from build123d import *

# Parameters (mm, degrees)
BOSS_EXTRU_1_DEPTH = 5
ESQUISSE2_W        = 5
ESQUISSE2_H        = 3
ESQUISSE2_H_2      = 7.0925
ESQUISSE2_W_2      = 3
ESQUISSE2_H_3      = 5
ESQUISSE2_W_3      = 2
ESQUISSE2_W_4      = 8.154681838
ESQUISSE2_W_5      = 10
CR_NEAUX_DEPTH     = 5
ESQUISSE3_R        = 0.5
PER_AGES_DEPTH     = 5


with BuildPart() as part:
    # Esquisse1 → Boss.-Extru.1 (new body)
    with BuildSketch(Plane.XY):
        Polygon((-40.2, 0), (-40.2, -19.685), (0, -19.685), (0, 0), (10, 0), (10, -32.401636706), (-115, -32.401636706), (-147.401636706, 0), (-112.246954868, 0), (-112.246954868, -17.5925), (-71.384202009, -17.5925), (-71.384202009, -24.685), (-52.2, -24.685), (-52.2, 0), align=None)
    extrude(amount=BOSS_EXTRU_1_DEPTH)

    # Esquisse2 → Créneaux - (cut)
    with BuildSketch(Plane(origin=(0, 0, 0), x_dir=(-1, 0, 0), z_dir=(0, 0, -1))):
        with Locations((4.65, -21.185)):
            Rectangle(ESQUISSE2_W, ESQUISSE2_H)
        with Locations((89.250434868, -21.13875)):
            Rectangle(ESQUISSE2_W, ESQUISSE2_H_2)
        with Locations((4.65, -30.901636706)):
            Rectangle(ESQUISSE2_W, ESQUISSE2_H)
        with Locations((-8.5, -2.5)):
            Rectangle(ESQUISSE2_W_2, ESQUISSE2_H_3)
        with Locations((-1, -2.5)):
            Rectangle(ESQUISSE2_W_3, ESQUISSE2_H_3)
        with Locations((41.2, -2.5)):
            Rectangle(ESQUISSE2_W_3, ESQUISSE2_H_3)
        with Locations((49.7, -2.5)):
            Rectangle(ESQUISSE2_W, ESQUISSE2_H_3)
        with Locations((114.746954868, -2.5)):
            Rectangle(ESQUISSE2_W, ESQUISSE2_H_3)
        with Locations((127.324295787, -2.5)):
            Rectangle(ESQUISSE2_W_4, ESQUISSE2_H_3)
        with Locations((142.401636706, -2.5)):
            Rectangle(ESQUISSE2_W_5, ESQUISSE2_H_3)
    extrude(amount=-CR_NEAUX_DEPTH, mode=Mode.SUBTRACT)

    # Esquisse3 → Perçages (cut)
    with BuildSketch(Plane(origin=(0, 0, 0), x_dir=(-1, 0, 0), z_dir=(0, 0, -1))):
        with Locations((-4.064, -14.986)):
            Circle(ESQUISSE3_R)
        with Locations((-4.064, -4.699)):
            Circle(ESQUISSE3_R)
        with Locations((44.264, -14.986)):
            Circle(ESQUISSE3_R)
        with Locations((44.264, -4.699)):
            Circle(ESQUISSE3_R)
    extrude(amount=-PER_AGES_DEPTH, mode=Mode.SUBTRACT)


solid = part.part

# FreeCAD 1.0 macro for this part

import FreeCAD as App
import Part
import Sketcher
Q = App.Units.Quantity


def add_polygon(sketch, points):
    """Adds a closed chain of lines whose ends are joined by coincident constraints."""
    first, n = sketch.GeometryCount, len(points)
    for a, b in zip(points, points[1:] + points[:1]):
        sketch.addGeometry(Part.LineSegment(App.Vector(*a, 0), App.Vector(*b, 0)), False)
    for i in range(n):
        sketch.addConstraint(Sketcher.Constraint("Coincident", first + i, 2, first + (i + 1) % n, 1))

doc = App.newDocument("Part")
body = doc.addObject("PartDesign::Body", "Body")

sketch1 = body.newObject("Sketcher::SketchObject", "Sketch")
sketch1.AttachmentSupport = (doc.getObject("XY_Plane"), [""])
sketch1.MapMode = "FlatFace"
add_polygon(sketch1, [(-40, -20), (-40, 0), (-52, 0), (-52, -25), (-71, -25), (-71, -18), (-112, -18), (-112, 0), (-147, 0), (-115, -32), (10, -32), (10, 0), (0, 0), (0, -20)])
sketch1.addConstraint([
    Sketcher.Constraint("Vertical", 0),
    Sketcher.Constraint("Horizontal", 1),
    Sketcher.Constraint("Vertical", 2),
    Sketcher.Constraint("Horizontal", 3),
    Sketcher.Constraint("Vertical", 4),
    Sketcher.Constraint("Horizontal", 5),
    Sketcher.Constraint("Vertical", 6),
    Sketcher.Constraint("Horizontal", 7),
    Sketcher.Constraint("Horizontal", 9),
    Sketcher.Constraint("Vertical", 10),
    Sketcher.Constraint("Horizontal", 11),
    Sketcher.Constraint("Vertical", 12),
    Sketcher.Constraint("Horizontal", 13),
    Sketcher.Constraint("Coincident", 11, 2, -1, 1),
    Sketcher.Constraint("PointOnObject", 0, 2, -1),
    Sketcher.Constraint("PointOnObject", 6, 2, -1),
    Sketcher.Constraint("DistanceX", 1, 2, 1, 1, Q("12 mm")),
    Sketcher.Constraint("DistanceX", 9, 1, 9, 2, Q("125 mm")),
    Sketcher.Constraint("DistanceX", 11, 2, 11, 1, Q("10 mm")),
    Sketcher.Constraint("Angle", 8, Q("-45 deg")),
    Sketcher.Constraint("DistanceX", 13, 2, 13, 1, Q("40.2 mm")),
    Sketcher.Constraint("DistanceY", 2, 2, 12, 2, Q("5 mm")),
    Sketcher.Constraint("DistanceY", 0, 1, 0, 2, Q("19.685 mm")),
    Sketcher.Constraint("DistanceY", 4, 1, 4, 2, Q("7.0925 mm")),
    Sketcher.Constraint("DistanceX", 7, 2, 7, 1, Q("35.154682 mm")),
    Sketcher.Constraint("DistanceX", 3, 2, 3, 1, Q("19.184202 mm")),
    Sketcher.Constraint("DistanceX", 5, 2, 5, 1, Q("40.862753 mm")),
])
pad1 = body.newObject("PartDesign::Pad", "Pad")
pad1.Profile = sketch1
pad1.Length = 5

sketch2 = body.newObject("Sketcher::SketchObject", "Sketch001")
sketch2.AttachmentSupport = (doc.getObject("XY_Plane"), [""])
sketch2.MapMode = "FlatFace"
add_polygon(sketch2, [(-2.1, -19.7), (-2.1, -22.7), (-7.2, -22.7), (-7.2, -19.7)])
add_polygon(sketch2, [(-86.8, -17.6), (-86.8, -24.7), (-91.8, -24.7), (-91.8, -17.6)])
add_polygon(sketch2, [(-2.1, -29.4), (-2.1, -32.4), (-7.2, -32.4), (-7.2, -29.4)])
add_polygon(sketch2, [(10, 0), (10, -5), (7, -5), (7, 0)])
add_polygon(sketch2, [(2, 0), (2, -5), (0, -5), (0, 0)])
add_polygon(sketch2, [(-40.2, 0), (-40.2, -5), (-42.2, -5), (-42.2, 0)])
add_polygon(sketch2, [(-47.2, 0), (-47.2, -5), (-52.2, -5), (-52.2, 0)])
add_polygon(sketch2, [(-112.2, 0), (-112.2, -5), (-117.2, -5), (-117.2, 0)])
add_polygon(sketch2, [(-123.2, 0), (-123.2, -5), (-131.4, -5), (-131.4, 0)])
add_polygon(sketch2, [(-137.4, 0), (-137.4, -5), (-147.4, -5), (-147.4, 0)])
sketch2.addConstraint([
    Sketcher.Constraint("Vertical", 0),
    Sketcher.Constraint("Horizontal", 1),
    Sketcher.Constraint("Vertical", 2),
    Sketcher.Constraint("Horizontal", 3),
    Sketcher.Constraint("Vertical", 4),
    Sketcher.Constraint("Horizontal", 5),
    Sketcher.Constraint("Vertical", 6),
    Sketcher.Constraint("Horizontal", 7),
    Sketcher.Constraint("Vertical", 8),
    Sketcher.Constraint("Horizontal", 9),
    Sketcher.Constraint("Vertical", 10),
    Sketcher.Constraint("Horizontal", 11),
    Sketcher.Constraint("Vertical", 12),
    Sketcher.Constraint("Horizontal", 13),
    Sketcher.Constraint("Vertical", 14),
    Sketcher.Constraint("Horizontal", 15),
    Sketcher.Constraint("Vertical", 16),
    Sketcher.Constraint("Horizontal", 17),
    Sketcher.Constraint("Vertical", 18),
    Sketcher.Constraint("Horizontal", 19),
    Sketcher.Constraint("Vertical", 20),
    Sketcher.Constraint("Horizontal", 21),
    Sketcher.Constraint("Vertical", 22),
    Sketcher.Constraint("Horizontal", 23),
    Sketcher.Constraint("Vertical", 24),
    Sketcher.Constraint("Horizontal", 25),
    Sketcher.Constraint("Vertical", 26),
    Sketcher.Constraint("Horizontal", 27),
    Sketcher.Constraint("Vertical", 28),
    Sketcher.Constraint("Horizontal", 29),
    Sketcher.Constraint("Vertical", 30),
    Sketcher.Constraint("Horizontal", 31),
    Sketcher.Constraint("Vertical", 32),
    Sketcher.Constraint("Horizontal", 33),
    Sketcher.Constraint("Vertical", 34),
    Sketcher.Constraint("Horizontal", 35),
    Sketcher.Constraint("Vertical", 36),
    Sketcher.Constraint("Horizontal", 37),
    Sketcher.Constraint("Vertical", 38),
    Sketcher.Constraint("Horizontal", 39),
    Sketcher.Constraint("Coincident", 18, 2, -1, 1),
    Sketcher.Constraint("PointOnObject", 14, 2, -1),
    Sketcher.Constraint("PointOnObject", 22, 2, -1),
    Sketcher.Constraint("PointOnObject", 26, 2, -1),
    Sketcher.Constraint("PointOnObject", 30, 2, -1),
    Sketcher.Constraint("PointOnObject", 34, 2, -1),
    Sketcher.Constraint("PointOnObject", 38, 2, -1),
    Sketcher.Constraint("Horizontal", 13, 2, 16, 2),
    Sketcher.Constraint("Horizontal", 17, 2, 20, 2),
    Sketcher.Constraint("Horizontal", 21, 2, 24, 2),
    Sketcher.Constraint("Horizontal", 25, 2, 28, 2),
    Sketcher.Constraint("Horizontal", 29, 2, 32, 2),
    Sketcher.Constraint("Horizontal", 33, 2, 36, 2),
    Sketcher.Constraint("Vertical", 3, 2, 8, 2),
    Sketcher.Constraint("Vertical", 2, 2, 9, 2),
    Sketcher.Constraint("Equal", 3, 5),
    Sketcher.Constraint("Equal", 19, 21),
    Sketcher.Constraint("Equal", 11, 25),
    Sketcher.Constraint("Equal", 27, 29),
    Sketcher.Constraint("Equal", 15, 0),
    Sketcher.Constraint("Equal", 2, 8),
    Sketcher.Constraint("Equal", 31, 12),
    Sketcher.Constraint("DistanceX", 1, 2, 1, 1, Q("5 mm")),
    Sketcher.Constraint("DistanceX", 13, 2, 13, 1, Q("3 mm")),
    Sketcher.Constraint("DistanceX", 17, 2, 17, 1, Q("2 mm")),
    Sketcher.Constraint("DistanceX", 37, 2, 37, 1, Q("10 mm")),
    Sketcher.Constraint("DistanceX", -1, 1, 12, 2, Q("10 mm")),
    Sketcher.Constraint("DistanceY", 4, 2, 1, 2, Q("2 mm")),
    Sketcher.Constraint("DistanceX", 24, 2, 21, 2, Q("5 mm")),
    Sketcher.Constraint("DistanceX", 32, 2, 29, 2, Q("6 mm")),
    Sketcher.Constraint("DistanceX", 36, 2, 33, 2, Q("6 mm")),
    Sketcher.Constraint("DistanceX", 20, 2, -1, 1, Q("40.2 mm")),
    Sketcher.Constraint("DistanceX", 0, 2, -1, 1, Q("2.15 mm")),
    Sketcher.Constraint("DistanceY", 4, 2, 4, 1, Q("7.0925 mm")),
    Sketcher.Constraint("DistanceY", 0, 2, -1, 1, Q("22.685 mm")),
    Sketcher.Constraint("DistanceX", 33, 2, 33, 1, Q("8.154682 mm")),
    Sketcher.Constraint("DistanceX", 28, 2, 6, 2, Q("20.49652 mm")),
    Sketcher.Constraint("DistanceX", 4, 2, -1, 1, Q("86.750435 mm")),
    Sketcher.Constraint("DistanceY", 8, 2, -1, 1, Q("32.401637 mm")),
])
pocket1 = body.newObject("PartDesign::Pocket", "Pocket")
pocket1.Profile = sketch2
pocket1.Length = 5
pocket1.Reversed = True

sketch3 = body.newObject("Sketcher::SketchObject", "Sketch002")
sketch3.AttachmentSupport = (doc.getObject("XY_Plane"), [""])
sketch3.MapMode = "FlatFace"
sketch3.addGeometry([
    Part.Circle(App.Vector(4.1, -15, 0), App.Vector(0, 0, 1), 0.5),
    Part.Circle(App.Vector(4.1, -4.7, 0), App.Vector(0, 0, 1), 0.5),
    Part.Circle(App.Vector(-44.3, -15, 0), App.Vector(0, 0, 1), 0.5),
    Part.Circle(App.Vector(-44.3, -4.7, 0), App.Vector(0, 0, 1), 0.5),
], False)
sketch3.addConstraint([
    Sketcher.Constraint("Equal", 0, 1),
    Sketcher.Constraint("Equal", 1, 2),
    Sketcher.Constraint("Equal", 2, 3),
    Sketcher.Constraint("Horizontal", 0, 3, 2, 3),
    Sketcher.Constraint("Horizontal", 1, 3, 3, 3),
    Sketcher.Constraint("Vertical", 0, 3, 1, 3),
    Sketcher.Constraint("Vertical", 2, 3, 3, 3),
    Sketcher.Constraint("Diameter", 0, Q("1 mm")),
    Sketcher.Constraint("DistanceX", -1, 1, 0, 3, Q("4.064 mm")),
    Sketcher.Constraint("DistanceY", 0, 3, -1, 1, Q("14.986 mm")),
    Sketcher.Constraint("DistanceY", 1, 3, -1, 1, Q("4.699 mm")),
    Sketcher.Constraint("DistanceX", 2, 3, -1, 1, Q("44.264 mm")),
])
pocket2 = body.newObject("PartDesign::Pocket", "Pocket001")
pocket2.Profile = sketch3
pocket2.Length = 5
pocket2.Reversed = True

doc.recompute()
